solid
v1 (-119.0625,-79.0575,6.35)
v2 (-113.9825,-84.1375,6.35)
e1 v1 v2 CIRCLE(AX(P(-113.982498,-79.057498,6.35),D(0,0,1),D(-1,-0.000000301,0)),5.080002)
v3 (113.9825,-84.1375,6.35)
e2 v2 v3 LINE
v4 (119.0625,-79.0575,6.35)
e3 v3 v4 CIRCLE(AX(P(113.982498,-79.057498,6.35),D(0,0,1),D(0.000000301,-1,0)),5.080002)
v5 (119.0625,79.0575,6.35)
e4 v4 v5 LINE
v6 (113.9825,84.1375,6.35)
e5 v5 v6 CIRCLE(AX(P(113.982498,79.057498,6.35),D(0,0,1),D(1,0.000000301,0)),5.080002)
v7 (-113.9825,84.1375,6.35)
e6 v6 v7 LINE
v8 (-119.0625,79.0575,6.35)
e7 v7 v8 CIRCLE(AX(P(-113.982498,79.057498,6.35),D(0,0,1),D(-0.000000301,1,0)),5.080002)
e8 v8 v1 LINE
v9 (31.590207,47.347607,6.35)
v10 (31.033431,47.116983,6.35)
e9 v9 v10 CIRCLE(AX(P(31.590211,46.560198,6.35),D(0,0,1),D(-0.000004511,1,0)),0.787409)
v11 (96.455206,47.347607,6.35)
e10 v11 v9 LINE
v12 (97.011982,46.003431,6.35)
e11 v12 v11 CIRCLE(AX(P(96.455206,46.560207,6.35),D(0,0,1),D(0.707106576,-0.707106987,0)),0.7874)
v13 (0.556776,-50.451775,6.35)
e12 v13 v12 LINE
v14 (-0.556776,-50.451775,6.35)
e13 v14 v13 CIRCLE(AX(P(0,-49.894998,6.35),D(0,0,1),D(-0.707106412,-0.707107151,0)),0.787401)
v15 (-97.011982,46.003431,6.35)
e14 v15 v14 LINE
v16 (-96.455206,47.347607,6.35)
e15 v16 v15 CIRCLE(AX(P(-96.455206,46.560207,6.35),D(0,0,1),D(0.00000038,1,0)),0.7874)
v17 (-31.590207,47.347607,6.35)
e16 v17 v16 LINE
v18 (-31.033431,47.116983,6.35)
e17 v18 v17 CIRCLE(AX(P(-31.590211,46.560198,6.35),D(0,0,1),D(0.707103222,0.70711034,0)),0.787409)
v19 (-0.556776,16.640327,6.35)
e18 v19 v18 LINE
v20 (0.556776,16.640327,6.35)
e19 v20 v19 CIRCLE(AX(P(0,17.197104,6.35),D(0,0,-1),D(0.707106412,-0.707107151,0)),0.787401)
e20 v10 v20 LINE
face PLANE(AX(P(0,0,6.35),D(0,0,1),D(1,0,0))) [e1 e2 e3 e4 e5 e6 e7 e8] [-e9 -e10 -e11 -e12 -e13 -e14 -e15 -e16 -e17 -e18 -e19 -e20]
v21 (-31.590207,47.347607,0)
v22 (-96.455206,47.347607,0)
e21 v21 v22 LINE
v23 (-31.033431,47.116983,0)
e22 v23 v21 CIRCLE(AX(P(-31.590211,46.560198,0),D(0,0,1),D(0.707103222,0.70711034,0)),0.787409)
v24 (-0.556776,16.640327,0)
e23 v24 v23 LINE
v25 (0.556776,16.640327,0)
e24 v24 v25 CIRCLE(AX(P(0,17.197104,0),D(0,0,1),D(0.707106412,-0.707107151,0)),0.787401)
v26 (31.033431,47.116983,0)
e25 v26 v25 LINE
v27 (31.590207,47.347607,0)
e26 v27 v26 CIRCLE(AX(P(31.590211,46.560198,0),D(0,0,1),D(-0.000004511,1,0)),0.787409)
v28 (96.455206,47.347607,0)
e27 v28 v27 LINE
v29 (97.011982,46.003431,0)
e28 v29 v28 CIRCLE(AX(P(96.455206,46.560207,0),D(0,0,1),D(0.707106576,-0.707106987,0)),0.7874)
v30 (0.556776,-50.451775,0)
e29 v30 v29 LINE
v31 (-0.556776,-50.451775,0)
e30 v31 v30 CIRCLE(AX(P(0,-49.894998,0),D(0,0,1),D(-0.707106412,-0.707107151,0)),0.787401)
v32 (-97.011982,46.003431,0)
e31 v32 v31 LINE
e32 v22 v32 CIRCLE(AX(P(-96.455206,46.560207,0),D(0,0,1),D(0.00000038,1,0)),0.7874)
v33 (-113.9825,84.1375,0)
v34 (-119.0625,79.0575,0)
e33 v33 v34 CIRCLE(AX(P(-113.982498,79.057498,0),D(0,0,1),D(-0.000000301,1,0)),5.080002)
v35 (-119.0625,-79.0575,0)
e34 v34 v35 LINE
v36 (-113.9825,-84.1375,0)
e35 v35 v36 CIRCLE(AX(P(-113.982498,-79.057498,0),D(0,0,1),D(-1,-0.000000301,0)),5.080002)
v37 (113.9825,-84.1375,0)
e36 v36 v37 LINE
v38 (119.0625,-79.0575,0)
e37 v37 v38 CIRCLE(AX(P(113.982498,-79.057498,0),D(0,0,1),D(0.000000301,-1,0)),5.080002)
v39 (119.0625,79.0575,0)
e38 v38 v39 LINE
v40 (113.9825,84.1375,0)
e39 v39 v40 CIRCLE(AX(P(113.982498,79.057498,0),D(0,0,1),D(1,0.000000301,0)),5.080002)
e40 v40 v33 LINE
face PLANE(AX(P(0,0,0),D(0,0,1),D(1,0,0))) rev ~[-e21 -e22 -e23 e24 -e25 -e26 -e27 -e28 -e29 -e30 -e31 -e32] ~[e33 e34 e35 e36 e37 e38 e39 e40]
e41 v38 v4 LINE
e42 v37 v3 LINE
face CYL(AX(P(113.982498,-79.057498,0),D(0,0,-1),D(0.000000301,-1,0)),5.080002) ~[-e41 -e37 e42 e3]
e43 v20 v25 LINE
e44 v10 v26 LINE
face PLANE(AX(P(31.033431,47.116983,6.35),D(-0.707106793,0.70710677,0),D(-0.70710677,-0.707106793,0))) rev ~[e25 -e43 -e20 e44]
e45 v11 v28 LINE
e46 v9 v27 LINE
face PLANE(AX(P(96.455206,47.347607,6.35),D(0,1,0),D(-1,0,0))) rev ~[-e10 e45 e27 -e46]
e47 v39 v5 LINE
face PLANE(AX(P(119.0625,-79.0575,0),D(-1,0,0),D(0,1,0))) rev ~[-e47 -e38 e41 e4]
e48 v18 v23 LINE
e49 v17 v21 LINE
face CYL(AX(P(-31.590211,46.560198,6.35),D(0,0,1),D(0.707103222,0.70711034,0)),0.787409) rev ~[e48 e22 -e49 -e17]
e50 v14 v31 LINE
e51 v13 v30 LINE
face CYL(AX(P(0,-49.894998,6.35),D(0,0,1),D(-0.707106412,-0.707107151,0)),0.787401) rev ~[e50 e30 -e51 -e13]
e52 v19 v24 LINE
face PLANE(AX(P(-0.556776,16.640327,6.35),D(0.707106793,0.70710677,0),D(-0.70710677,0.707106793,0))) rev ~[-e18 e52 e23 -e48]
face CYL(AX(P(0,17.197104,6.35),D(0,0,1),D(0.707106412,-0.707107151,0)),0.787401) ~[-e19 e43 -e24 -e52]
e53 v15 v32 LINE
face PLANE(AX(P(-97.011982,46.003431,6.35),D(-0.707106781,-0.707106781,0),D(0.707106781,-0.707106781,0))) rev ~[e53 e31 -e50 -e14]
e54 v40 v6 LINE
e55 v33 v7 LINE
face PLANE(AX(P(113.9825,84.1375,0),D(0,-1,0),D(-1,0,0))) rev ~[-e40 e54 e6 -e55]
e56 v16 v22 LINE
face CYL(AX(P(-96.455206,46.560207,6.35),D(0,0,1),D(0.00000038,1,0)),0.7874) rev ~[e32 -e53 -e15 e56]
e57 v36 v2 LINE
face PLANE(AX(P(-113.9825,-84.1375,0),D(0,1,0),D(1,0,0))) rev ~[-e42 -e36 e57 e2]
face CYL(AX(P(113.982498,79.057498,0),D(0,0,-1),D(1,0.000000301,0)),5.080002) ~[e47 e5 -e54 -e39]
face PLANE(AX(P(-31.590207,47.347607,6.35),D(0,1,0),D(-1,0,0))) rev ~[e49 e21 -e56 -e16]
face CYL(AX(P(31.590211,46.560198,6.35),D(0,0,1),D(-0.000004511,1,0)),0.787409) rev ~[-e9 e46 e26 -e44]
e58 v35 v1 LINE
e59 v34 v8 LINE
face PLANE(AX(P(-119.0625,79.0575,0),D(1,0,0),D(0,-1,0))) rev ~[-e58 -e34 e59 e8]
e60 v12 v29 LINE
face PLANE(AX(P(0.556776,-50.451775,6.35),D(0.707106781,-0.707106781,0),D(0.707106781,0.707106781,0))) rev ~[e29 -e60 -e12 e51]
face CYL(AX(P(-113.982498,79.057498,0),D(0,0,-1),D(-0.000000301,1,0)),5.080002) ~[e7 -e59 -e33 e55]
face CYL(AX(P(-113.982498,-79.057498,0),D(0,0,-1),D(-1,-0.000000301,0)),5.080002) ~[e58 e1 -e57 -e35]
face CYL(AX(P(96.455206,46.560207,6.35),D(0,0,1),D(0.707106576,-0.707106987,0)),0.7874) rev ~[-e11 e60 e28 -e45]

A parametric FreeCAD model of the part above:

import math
import FreeCAD as App
import Part
import Sketcher
Q = App.Units.Quantity


def add_polygon(sketch, points):
    """Adds a closed chain of lines whose ends are joined by coincident constraints."""
    first, n = sketch.GeometryCount, len(points)
    for a, b in zip(points, points[1:] + points[:1]):
        sketch.addGeometry(Part.LineSegment(App.Vector(*a, 0), App.Vector(*b, 0)), False)
    for i in range(n):
        sketch.addConstraint(Sketcher.Constraint("Coincident", first + i, 2, first + (i + 1) % n, 1))

doc = App.newDocument("Part")
params = doc.addObject("Spreadsheet::Sheet", "Params")
for row, (alias, value) in enumerate([
    ("sketch1_radius", "0.2000001 in"),
    ("sketch1_width", "8.975 in"),
    ("sketch1_height", "6.225 in"),
    ("pad1_length", "0.25 in"),
    ("sketch2_width", "2.5 in"),
    ("sketch2_length", "1.77 in"),
    ("sketch3_radius", "0.031 in"),
], start=1):
    params.set(f"A{row}", alias)
    params.set(f"B{row}", "=" + value)
    params.setAlias(f"B{row}", alias)

body = doc.addObject("PartDesign::Body", "Body")

# Sketch on XY plane
sketch1 = body.newObject("Sketcher::SketchObject", "Sketch")
sketch1.AttachmentSupport = (doc.getObject("XY_Plane"), [""])
sketch1.MapMode = "FlatFace"
sketch1.addGeometry([
    Part.LineSegment(App.Vector(114, 84, 0), App.Vector(-114, 84, 0)),  # 0
    Part.ArcOfCircle(Part.Circle(App.Vector(-114, 79, 0), App.Vector(0, 0, 1), 5), math.radians(90), math.radians(180)),  # 1
    Part.LineSegment(App.Vector(-119, 79, 0), App.Vector(-119, -79, 0)),  # 2
    Part.ArcOfCircle(Part.Circle(App.Vector(-114, -79, 0), App.Vector(0, 0, 1), 5), math.radians(-180), math.radians(-90)),  # 3
    Part.LineSegment(App.Vector(-114, -84, 0), App.Vector(114, -84, 0)),  # 4
    Part.ArcOfCircle(Part.Circle(App.Vector(114, -79, 0), App.Vector(0, 0, 1), 5), math.radians(-90), math.radians(0)),  # 5
    Part.LineSegment(App.Vector(119, -79, 0), App.Vector(119, 79, 0)),  # 6
    Part.ArcOfCircle(Part.Circle(App.Vector(114, 79, 0), App.Vector(0, 0, 1), 5), math.radians(0), math.radians(90)),  # 7
], False)
sketch1.addConstraint([
    Sketcher.Constraint("Tangent", 0, 2, 1, 1),
    Sketcher.Constraint("Tangent", 1, 2, 2, 1),
    Sketcher.Constraint("Tangent", 2, 2, 3, 1),
    Sketcher.Constraint("Tangent", 3, 2, 4, 1),
    Sketcher.Constraint("Tangent", 4, 2, 5, 1),
    Sketcher.Constraint("Tangent", 5, 2, 6, 1),
    Sketcher.Constraint("Tangent", 6, 2, 7, 1),
    Sketcher.Constraint("Tangent", 7, 2, 0, 1),
    Sketcher.Constraint("Horizontal", 0),
    Sketcher.Constraint("Vertical", 2),
    Sketcher.Constraint("Horizontal", 4),
    Sketcher.Constraint("Vertical", 6),
    Sketcher.Constraint("Equal", 1, 3),
    Sketcher.Constraint("Equal", 3, 5),
    Sketcher.Constraint("Equal", 5, 7),
    Sketcher.Constraint("Symmetric", 1, 3, 5, 3, -1, 1),
    Sketcher.Constraint("Radius", 1, Q("0.2000001 in")),
    Sketcher.Constraint("DistanceX", 0, 2, 0, 1, Q("8.975 in")),
    Sketcher.Constraint("DistanceY", 2, 2, 2, 1, Q("6.225 in")),
])
sketch1.setExpression("Constraints[16]", "Params.sketch1_radius")
sketch1.setExpression("Constraints[17]", "Params.sketch1_width")
sketch1.setExpression("Constraints[18]", "Params.sketch1_height")
pad1 = body.newObject("PartDesign::Pad", "Pad")
pad1.Profile = sketch1
pad1.setExpression("Length", "Params.pad1_length")

# Sketch on XY plane
sketch2 = body.newObject("Sketcher::SketchObject", "Sketch001")
sketch2.AttachmentSupport = (doc.getObject("XY_Plane"), [""])
sketch2.MapMode = "FlatFace"
sketch2.AttachmentOffset = App.Placement(App.Vector(0, 0, 0.25 * 25.4), App.Rotation())
add_polygon(sketch2, [(-95, 46), (0, -49), (95, 46), (32, 46), (0, 14), (-32, 46)])  # lines 0-5
sketch2.addConstraint([
    Sketcher.Constraint("Horizontal", 2),
    Sketcher.Constraint("Horizontal", 5),
    Sketcher.Constraint("Symmetric", 2, 2, 4, 2, -2),
    Sketcher.Constraint("PointOnObject", 0, 2, -2),
    Sketcher.Constraint("PointOnObject", 3, 2, -2),
    Sketcher.Constraint("Perpendicular", 0, 1),
    Sketcher.Constraint("Parallel", 1, 3),
    Sketcher.Constraint("Perpendicular", 3, 4),
    Sketcher.Constraint("DistanceX", 2, 2, 2, 1, Q("2.5 in")),
    Sketcher.Constraint("Distance", 3, Q("1.77 in")),
    Sketcher.Constraint("DistanceY", 0, 2, -1, 1, Q("1.9375 in")),
])
sketch2.setExpression("Constraints[14]", "Params.sketch2_width")
sketch2.setExpression("Constraints[15]", "Params.sketch2_length")
pocket1 = body.newObject("PartDesign::Pocket", "Pocket")
pocket1.Profile = sketch2
pocket1.Type = "ThroughAll"

# Sketch on XY plane
sketch3 = body.newObject("Sketcher::SketchObject", "Sketch002")
sketch3.AttachmentSupport = (doc.getObject("XY_Plane"), [""])
sketch3.MapMode = "FlatFace"
sketch3.AttachmentOffset = App.Placement(App.Vector(0, 0, 0.25 * 25.4), App.Rotation())
sketch3.addGeometry([
    Part.LineSegment(App.Vector(-97, 46, 0), App.Vector(-0.6, -50.5, 0)),  # 0
    Part.ArcOfCircle(Part.Circle(App.Vector(0, -49.9, 0), App.Vector(0, 0, 1), 0.8), math.radians(-135), math.radians(-45)),  # 1
    Part.LineSegment(App.Vector(0.6, -50.5, 0), App.Vector(97, 46, 0)),  # 2
    Part.ArcOfCircle(Part.Circle(App.Vector(96.5, 46.6, 0), App.Vector(0, 0, 1), 0.8), math.radians(-45), math.radians(90)),  # 3
    Part.LineSegment(App.Vector(96.5, 47.3, 0), App.Vector(31.6, 47.3, 0)),  # 4
    Part.ArcOfCircle(Part.Circle(App.Vector(31.6, 46.6, 0), App.Vector(0, 0, 1), 0.8), math.radians(90), math.radians(135)),  # 5
    Part.LineSegment(App.Vector(31, 47.1, 0), App.Vector(0.6, 16.6, 0)),  # 6
    Part.ArcOfCircle(Part.Circle(App.Vector(0, 17.2, 0), App.Vector(0, 0, 1), 0.8), math.radians(-135), math.radians(-45)),  # 7
    Part.LineSegment(App.Vector(-0.6, 16.6, 0), App.Vector(-31, 47.1, 0)),  # 8
    Part.ArcOfCircle(Part.Circle(App.Vector(-31.6, 46.6, 0), App.Vector(0, 0, 1), 0.8), math.radians(45), math.radians(90)),  # 9
    Part.LineSegment(App.Vector(-31.6, 47.3, 0), App.Vector(-96.5, 47.3, 0)),  # 10
    Part.ArcOfCircle(Part.Circle(App.Vector(-96.5, 46.6, 0), App.Vector(0, 0, 1), 0.8), math.radians(90), math.radians(225)),  # 11
], False)
sketch3.addConstraint([
    Sketcher.Constraint("Tangent", 0, 2, 1, 1),
    Sketcher.Constraint("Tangent", 1, 2, 2, 1),
    Sketcher.Constraint("Tangent", 2, 2, 3, 1),
    Sketcher.Constraint("Tangent", 3, 2, 4, 1),
    Sketcher.Constraint("Coincident", 4, 2, 5, 1),
    Sketcher.Constraint("Coincident", 5, 2, 6, 1),
    Sketcher.Constraint("Tangent", 6, 2, 7, 2),
    Sketcher.Constraint("Tangent", 7, 1, 8, 1),
    Sketcher.Constraint("Coincident", 8, 2, 9, 1),
    Sketcher.Constraint("Coincident", 9, 2, 10, 1),
    Sketcher.Constraint("Tangent", 10, 2, 11, 1),
    Sketcher.Constraint("Tangent", 11, 2, 0, 1),
    Sketcher.Constraint("Horizontal", 4),
    Sketcher.Constraint("Horizontal", 10),
    Sketcher.Constraint("Equal", 1, 3),
    Sketcher.Constraint("Equal", 3, 7),
    Sketcher.Constraint("Equal", 5, 9),
    Sketcher.Constraint("Equal", 7, 11),
    Sketcher.Constraint("Symmetric", 5, 3, 9, 3, -2),
    Sketcher.Constraint("PointOnObject", 1, 3, -2),
    Sketcher.Constraint("PointOnObject", 7, 3, -2),
    Sketcher.Constraint("Perpendicular", 0, 2),
    Sketcher.Constraint("Parallel", 2, 6),
    Sketcher.Constraint("Perpendicular", 6, 8),
    Sketcher.Constraint("Horizontal", 5, 2, 8, 2),
    Sketcher.Constraint("Equal", 4, 10),
    Sketcher.Constraint("Radius", 1, Q("0.031 in")),
    Sketcher.Constraint("Radius", 5, Q("0.787409 mm")),
    Sketcher.Constraint("DistanceX", 4, 2, 4, 1, Q("64.864999 mm")),
    Sketcher.Constraint("Distance", 6, Q("43.1005 mm")),
    Sketcher.Constraint("DistanceY", 1, 3, -1, 1, Q("49.894998 mm")),
    Sketcher.Constraint("DistanceY", 1, 3, 7, 3, Q("67.092102 mm")),
    Sketcher.Constraint("Distance", 0, Q("136.40826 mm")),
])
sketch3.setExpression("Constraints[26]", "Params.sketch3_radius")
pocket2 = body.newObject("PartDesign::Pocket", "Pocket001")
pocket2.Profile = sketch3
pocket2.Type = "ThroughAll"

doc.recompute()
